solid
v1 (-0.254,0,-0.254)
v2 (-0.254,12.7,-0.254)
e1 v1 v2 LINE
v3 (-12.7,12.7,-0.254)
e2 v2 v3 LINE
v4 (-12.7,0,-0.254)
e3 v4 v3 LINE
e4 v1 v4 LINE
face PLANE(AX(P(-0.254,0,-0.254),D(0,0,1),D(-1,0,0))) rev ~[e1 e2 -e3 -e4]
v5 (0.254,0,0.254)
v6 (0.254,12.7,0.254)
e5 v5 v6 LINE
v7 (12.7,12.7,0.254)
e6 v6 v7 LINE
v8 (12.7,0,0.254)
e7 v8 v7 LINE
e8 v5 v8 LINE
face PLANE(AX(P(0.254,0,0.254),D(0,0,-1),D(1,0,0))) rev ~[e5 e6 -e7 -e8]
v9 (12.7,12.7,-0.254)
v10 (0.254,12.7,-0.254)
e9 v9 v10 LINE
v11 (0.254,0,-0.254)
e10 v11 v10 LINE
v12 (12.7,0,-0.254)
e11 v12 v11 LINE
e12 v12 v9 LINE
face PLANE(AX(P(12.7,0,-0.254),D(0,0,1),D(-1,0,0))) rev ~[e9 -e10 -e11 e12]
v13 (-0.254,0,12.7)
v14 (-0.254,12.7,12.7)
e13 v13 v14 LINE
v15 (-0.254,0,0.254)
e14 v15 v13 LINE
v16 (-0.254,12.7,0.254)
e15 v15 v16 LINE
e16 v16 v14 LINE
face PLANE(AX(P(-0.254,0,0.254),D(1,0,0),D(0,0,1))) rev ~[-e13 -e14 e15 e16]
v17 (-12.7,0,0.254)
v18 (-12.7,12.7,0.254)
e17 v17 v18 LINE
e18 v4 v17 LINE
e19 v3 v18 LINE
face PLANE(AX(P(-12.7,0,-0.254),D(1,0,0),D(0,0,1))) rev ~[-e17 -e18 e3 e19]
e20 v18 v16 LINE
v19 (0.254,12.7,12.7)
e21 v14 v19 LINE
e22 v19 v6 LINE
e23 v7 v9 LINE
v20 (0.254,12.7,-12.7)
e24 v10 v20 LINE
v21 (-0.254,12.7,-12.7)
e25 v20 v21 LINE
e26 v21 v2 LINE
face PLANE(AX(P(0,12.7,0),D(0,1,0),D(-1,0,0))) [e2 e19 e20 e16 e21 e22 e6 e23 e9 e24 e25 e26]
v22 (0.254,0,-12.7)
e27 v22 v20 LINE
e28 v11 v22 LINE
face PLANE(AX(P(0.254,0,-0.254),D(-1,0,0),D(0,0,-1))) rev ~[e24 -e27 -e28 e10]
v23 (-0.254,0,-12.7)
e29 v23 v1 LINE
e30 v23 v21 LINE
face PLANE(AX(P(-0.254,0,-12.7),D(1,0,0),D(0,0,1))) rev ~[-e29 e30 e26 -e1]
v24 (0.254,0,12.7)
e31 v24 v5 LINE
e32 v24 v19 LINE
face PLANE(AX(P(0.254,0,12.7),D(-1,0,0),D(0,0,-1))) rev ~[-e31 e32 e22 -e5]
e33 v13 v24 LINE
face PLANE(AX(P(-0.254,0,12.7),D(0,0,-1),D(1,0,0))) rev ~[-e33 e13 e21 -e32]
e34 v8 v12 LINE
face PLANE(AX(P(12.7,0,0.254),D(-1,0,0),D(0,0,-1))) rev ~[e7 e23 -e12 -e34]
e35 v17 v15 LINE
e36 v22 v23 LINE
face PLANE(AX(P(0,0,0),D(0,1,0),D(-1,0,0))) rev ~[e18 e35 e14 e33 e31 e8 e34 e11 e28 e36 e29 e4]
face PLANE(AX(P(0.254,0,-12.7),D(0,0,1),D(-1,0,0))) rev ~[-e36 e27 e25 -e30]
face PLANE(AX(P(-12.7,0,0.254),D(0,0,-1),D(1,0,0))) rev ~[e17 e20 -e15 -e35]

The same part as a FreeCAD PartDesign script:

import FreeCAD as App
import Part
import Sketcher

V = App.Vector
Q = App.Units.Quantity

doc = App.newDocument("Part")
body = doc.addObject("PartDesign::Body", "Body")

# Sketch on XZ plane
sketch1 = body.newObject("Sketcher::SketchObject", "Sketch")
sketch1.AttachmentSupport = (doc.getObject("XZ_Plane"), [""])
sketch1.MapMode = "FlatFace"
sketch1.addGeometry([
    Part.LineSegment(V(-0.3, 12.7, 0), V(0.3, 12.7, 0)),  # 0
    Part.LineSegment(V(0.3, 12.7, 0), V(0.3, 0.3, 0)),  # 1
    Part.LineSegment(V(0.3, 0.3, 0), V(12.7, 0.3, 0)),  # 2
    Part.LineSegment(V(12.7, 0.3, 0), V(12.7, -0.3, 0)),  # 3
    Part.LineSegment(V(12.7, -0.3, 0), V(0.3, -0.3, 0)),  # 4
    Part.LineSegment(V(0.3, -0.3, 0), V(0.3, -12.7, 0)),  # 5
    Part.LineSegment(V(0.3, -12.7, 0), V(-0.3, -12.7, 0)),  # 6
    Part.LineSegment(V(-0.3, -12.7, 0), V(-0.3, -0.3, 0)),  # 7
    Part.LineSegment(V(-0.3, -0.3, 0), V(-12.7, -0.3, 0)),  # 8
    Part.LineSegment(V(-12.7, -0.3, 0), V(-12.7, 0.3, 0)),  # 9
    Part.LineSegment(V(-12.7, 0.3, 0), V(-0.3, 0.3, 0)),  # 10
    Part.LineSegment(V(-0.3, 0.3, 0), V(-0.3, 12.7, 0)),  # 11
], False)
sketch1.addConstraint([
    Sketcher.Constraint("Coincident", 0, 2, 1, 1),
    Sketcher.Constraint("Coincident", 1, 2, 2, 1),
    Sketcher.Constraint("Coincident", 2, 2, 3, 1),
    Sketcher.Constraint("Coincident", 3, 2, 4, 1),
    Sketcher.Constraint("Coincident", 4, 2, 5, 1),
    Sketcher.Constraint("Coincident", 5, 2, 6, 1),
    Sketcher.Constraint("Coincident", 6, 2, 7, 1),
    Sketcher.Constraint("Coincident", 7, 2, 8, 1),
    Sketcher.Constraint("Coincident", 8, 2, 9, 1),
    Sketcher.Constraint("Coincident", 9, 2, 10, 1),
    Sketcher.Constraint("Coincident", 10, 2, 11, 1),
    Sketcher.Constraint("Coincident", 11, 2, 0, 1),
    Sketcher.Constraint("Horizontal", 0),
    Sketcher.Constraint("Vertical", 1),
    Sketcher.Constraint("Horizontal", 2),
    Sketcher.Constraint("Vertical", 3),
    Sketcher.Constraint("Horizontal", 4),
    Sketcher.Constraint("Vertical", 5),
    Sketcher.Constraint("Horizontal", 6),
    Sketcher.Constraint("Vertical", 7),
    Sketcher.Constraint("Horizontal", 8),
    Sketcher.Constraint("Vertical", 9),
    Sketcher.Constraint("Horizontal", 10),
    Sketcher.Constraint("Vertical", 11),
    Sketcher.Constraint("Symmetric", 0, 2, 6, 2, -1, 1),
    Sketcher.Constraint("Symmetric", 2, 2, 8, 2, -1, 1),
    Sketcher.Constraint("Symmetric", 4, 2, 10, 2, -1, 1),
    Sketcher.Constraint("Symmetric", 4, 2, 7, 2, -2),
    Sketcher.Constraint("Equal", 10, 1),
    Sketcher.Constraint("Equal", 6, 3),
    Sketcher.Constraint("DistanceY", 5, 2, 0, 2, Q("1 in")),
    Sketcher.Constraint("DistanceX", 0, 1, 0, 2, Q("0.02 in")),
])
pad1 = body.newObject("PartDesign::Pad", "Pad")
pad1.Profile = sketch1
pad1.Length = Q("0.5 in")
pad1.Reversed = True

doc.recompute()
